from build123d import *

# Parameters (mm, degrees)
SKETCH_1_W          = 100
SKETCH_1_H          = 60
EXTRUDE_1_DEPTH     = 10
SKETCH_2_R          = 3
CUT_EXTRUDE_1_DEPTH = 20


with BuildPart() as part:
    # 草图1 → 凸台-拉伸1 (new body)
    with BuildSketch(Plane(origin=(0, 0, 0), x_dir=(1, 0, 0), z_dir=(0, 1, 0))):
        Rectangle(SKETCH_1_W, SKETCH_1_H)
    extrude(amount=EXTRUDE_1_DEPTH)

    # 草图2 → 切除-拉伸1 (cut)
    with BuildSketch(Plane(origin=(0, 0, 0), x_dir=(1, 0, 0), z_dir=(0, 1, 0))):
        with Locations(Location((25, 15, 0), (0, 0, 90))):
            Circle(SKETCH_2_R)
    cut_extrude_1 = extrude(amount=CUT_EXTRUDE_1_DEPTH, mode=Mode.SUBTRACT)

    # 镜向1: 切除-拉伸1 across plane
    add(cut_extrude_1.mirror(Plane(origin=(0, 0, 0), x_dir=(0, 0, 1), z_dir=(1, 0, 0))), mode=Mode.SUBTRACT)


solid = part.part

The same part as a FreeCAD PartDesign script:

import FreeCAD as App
import Part
import Sketcher
from FreeCAD import Vector
Q = App.Units.Quantity

doc = App.newDocument("Part")
body = doc.addObject("PartDesign::Body", "Body")

# Sketch on XZ plane
sketch1 = body.newObject("Sketcher::SketchObject", "Sketch")
sketch1.AttachmentSupport = (doc.getObject("XZ_Plane"), [""])
sketch1.MapMode = "FlatFace"
sketch1.addGeometry(Part.LineSegment(Vector(-50, -30, 0), Vector(-50, 30, 0)), False)
sketch1.addGeometry(Part.LineSegment(Vector(-50, 30, 0), Vector(50, 30, 0)), False)
sketch1.addGeometry(Part.LineSegment(Vector(50, 30, 0), Vector(50, -30, 0)), False)
sketch1.addGeometry(Part.LineSegment(Vector(50, -30, 0), Vector(-50, -30, 0)), False)
sketch1.addConstraint(Sketcher.Constraint("Coincident", 0, 2, 1, 1))
sketch1.addConstraint(Sketcher.Constraint("Coincident", 1, 2, 2, 1))
sketch1.addConstraint(Sketcher.Constraint("Coincident", 2, 2, 3, 1))
sketch1.addConstraint(Sketcher.Constraint("Coincident", 3, 2, 0, 1))
sketch1.addConstraint(Sketcher.Constraint("Vertical", 0))
sketch1.addConstraint(Sketcher.Constraint("Horizontal", 1))
sketch1.addConstraint(Sketcher.Constraint("Vertical", 2))
sketch1.addConstraint(Sketcher.Constraint("Horizontal", 3))
sketch1.addConstraint(Sketcher.Constraint("Symmetric", 0, 2, 2, 2, -1, 1))
sketch1.addConstraint(Sketcher.Constraint("DistanceX", 1, 1, 1, 2, Q("100 mm")))
sketch1.addConstraint(Sketcher.Constraint("DistanceY", 0, 1, 0, 2, Q("60 mm")))
pad1 = body.newObject("PartDesign::Pad", "Pad")
pad1.Profile = sketch1
pad1.Length = 10
pad1.Reversed = True

# Sketch on XZ plane
sketch2 = body.newObject("Sketcher::SketchObject", "Sketch001")
sketch2.AttachmentSupport = (doc.getObject("XZ_Plane"), [""])
sketch2.MapMode = "FlatFace"
sketch2.addGeometry(Part.Circle(Vector(25, -15, 0), Vector(0, 0, 1), 3), False)
sketch2.addConstraint(Sketcher.Constraint("Diameter", 0, Q("6 mm")))
sketch2.addConstraint(Sketcher.Constraint("DistanceX", -1, 1, 0, 3, Q("25 mm")))
sketch2.addConstraint(Sketcher.Constraint("DistanceY", 0, 3, -1, 1, Q("15 mm")))
pocket1 = body.newObject("PartDesign::Pocket", "Pocket")
pocket1.Profile = sketch2
pocket1.Length = 20
doc.recompute()

mirrored = body.newObject("PartDesign::Mirrored", "Mirrored")
mirrored.Originals = [pocket1]
mirrored.MirrorPlane = (doc.getObject("YZ_Plane"), [""])
body.Tip = mirrored

doc.recompute()
